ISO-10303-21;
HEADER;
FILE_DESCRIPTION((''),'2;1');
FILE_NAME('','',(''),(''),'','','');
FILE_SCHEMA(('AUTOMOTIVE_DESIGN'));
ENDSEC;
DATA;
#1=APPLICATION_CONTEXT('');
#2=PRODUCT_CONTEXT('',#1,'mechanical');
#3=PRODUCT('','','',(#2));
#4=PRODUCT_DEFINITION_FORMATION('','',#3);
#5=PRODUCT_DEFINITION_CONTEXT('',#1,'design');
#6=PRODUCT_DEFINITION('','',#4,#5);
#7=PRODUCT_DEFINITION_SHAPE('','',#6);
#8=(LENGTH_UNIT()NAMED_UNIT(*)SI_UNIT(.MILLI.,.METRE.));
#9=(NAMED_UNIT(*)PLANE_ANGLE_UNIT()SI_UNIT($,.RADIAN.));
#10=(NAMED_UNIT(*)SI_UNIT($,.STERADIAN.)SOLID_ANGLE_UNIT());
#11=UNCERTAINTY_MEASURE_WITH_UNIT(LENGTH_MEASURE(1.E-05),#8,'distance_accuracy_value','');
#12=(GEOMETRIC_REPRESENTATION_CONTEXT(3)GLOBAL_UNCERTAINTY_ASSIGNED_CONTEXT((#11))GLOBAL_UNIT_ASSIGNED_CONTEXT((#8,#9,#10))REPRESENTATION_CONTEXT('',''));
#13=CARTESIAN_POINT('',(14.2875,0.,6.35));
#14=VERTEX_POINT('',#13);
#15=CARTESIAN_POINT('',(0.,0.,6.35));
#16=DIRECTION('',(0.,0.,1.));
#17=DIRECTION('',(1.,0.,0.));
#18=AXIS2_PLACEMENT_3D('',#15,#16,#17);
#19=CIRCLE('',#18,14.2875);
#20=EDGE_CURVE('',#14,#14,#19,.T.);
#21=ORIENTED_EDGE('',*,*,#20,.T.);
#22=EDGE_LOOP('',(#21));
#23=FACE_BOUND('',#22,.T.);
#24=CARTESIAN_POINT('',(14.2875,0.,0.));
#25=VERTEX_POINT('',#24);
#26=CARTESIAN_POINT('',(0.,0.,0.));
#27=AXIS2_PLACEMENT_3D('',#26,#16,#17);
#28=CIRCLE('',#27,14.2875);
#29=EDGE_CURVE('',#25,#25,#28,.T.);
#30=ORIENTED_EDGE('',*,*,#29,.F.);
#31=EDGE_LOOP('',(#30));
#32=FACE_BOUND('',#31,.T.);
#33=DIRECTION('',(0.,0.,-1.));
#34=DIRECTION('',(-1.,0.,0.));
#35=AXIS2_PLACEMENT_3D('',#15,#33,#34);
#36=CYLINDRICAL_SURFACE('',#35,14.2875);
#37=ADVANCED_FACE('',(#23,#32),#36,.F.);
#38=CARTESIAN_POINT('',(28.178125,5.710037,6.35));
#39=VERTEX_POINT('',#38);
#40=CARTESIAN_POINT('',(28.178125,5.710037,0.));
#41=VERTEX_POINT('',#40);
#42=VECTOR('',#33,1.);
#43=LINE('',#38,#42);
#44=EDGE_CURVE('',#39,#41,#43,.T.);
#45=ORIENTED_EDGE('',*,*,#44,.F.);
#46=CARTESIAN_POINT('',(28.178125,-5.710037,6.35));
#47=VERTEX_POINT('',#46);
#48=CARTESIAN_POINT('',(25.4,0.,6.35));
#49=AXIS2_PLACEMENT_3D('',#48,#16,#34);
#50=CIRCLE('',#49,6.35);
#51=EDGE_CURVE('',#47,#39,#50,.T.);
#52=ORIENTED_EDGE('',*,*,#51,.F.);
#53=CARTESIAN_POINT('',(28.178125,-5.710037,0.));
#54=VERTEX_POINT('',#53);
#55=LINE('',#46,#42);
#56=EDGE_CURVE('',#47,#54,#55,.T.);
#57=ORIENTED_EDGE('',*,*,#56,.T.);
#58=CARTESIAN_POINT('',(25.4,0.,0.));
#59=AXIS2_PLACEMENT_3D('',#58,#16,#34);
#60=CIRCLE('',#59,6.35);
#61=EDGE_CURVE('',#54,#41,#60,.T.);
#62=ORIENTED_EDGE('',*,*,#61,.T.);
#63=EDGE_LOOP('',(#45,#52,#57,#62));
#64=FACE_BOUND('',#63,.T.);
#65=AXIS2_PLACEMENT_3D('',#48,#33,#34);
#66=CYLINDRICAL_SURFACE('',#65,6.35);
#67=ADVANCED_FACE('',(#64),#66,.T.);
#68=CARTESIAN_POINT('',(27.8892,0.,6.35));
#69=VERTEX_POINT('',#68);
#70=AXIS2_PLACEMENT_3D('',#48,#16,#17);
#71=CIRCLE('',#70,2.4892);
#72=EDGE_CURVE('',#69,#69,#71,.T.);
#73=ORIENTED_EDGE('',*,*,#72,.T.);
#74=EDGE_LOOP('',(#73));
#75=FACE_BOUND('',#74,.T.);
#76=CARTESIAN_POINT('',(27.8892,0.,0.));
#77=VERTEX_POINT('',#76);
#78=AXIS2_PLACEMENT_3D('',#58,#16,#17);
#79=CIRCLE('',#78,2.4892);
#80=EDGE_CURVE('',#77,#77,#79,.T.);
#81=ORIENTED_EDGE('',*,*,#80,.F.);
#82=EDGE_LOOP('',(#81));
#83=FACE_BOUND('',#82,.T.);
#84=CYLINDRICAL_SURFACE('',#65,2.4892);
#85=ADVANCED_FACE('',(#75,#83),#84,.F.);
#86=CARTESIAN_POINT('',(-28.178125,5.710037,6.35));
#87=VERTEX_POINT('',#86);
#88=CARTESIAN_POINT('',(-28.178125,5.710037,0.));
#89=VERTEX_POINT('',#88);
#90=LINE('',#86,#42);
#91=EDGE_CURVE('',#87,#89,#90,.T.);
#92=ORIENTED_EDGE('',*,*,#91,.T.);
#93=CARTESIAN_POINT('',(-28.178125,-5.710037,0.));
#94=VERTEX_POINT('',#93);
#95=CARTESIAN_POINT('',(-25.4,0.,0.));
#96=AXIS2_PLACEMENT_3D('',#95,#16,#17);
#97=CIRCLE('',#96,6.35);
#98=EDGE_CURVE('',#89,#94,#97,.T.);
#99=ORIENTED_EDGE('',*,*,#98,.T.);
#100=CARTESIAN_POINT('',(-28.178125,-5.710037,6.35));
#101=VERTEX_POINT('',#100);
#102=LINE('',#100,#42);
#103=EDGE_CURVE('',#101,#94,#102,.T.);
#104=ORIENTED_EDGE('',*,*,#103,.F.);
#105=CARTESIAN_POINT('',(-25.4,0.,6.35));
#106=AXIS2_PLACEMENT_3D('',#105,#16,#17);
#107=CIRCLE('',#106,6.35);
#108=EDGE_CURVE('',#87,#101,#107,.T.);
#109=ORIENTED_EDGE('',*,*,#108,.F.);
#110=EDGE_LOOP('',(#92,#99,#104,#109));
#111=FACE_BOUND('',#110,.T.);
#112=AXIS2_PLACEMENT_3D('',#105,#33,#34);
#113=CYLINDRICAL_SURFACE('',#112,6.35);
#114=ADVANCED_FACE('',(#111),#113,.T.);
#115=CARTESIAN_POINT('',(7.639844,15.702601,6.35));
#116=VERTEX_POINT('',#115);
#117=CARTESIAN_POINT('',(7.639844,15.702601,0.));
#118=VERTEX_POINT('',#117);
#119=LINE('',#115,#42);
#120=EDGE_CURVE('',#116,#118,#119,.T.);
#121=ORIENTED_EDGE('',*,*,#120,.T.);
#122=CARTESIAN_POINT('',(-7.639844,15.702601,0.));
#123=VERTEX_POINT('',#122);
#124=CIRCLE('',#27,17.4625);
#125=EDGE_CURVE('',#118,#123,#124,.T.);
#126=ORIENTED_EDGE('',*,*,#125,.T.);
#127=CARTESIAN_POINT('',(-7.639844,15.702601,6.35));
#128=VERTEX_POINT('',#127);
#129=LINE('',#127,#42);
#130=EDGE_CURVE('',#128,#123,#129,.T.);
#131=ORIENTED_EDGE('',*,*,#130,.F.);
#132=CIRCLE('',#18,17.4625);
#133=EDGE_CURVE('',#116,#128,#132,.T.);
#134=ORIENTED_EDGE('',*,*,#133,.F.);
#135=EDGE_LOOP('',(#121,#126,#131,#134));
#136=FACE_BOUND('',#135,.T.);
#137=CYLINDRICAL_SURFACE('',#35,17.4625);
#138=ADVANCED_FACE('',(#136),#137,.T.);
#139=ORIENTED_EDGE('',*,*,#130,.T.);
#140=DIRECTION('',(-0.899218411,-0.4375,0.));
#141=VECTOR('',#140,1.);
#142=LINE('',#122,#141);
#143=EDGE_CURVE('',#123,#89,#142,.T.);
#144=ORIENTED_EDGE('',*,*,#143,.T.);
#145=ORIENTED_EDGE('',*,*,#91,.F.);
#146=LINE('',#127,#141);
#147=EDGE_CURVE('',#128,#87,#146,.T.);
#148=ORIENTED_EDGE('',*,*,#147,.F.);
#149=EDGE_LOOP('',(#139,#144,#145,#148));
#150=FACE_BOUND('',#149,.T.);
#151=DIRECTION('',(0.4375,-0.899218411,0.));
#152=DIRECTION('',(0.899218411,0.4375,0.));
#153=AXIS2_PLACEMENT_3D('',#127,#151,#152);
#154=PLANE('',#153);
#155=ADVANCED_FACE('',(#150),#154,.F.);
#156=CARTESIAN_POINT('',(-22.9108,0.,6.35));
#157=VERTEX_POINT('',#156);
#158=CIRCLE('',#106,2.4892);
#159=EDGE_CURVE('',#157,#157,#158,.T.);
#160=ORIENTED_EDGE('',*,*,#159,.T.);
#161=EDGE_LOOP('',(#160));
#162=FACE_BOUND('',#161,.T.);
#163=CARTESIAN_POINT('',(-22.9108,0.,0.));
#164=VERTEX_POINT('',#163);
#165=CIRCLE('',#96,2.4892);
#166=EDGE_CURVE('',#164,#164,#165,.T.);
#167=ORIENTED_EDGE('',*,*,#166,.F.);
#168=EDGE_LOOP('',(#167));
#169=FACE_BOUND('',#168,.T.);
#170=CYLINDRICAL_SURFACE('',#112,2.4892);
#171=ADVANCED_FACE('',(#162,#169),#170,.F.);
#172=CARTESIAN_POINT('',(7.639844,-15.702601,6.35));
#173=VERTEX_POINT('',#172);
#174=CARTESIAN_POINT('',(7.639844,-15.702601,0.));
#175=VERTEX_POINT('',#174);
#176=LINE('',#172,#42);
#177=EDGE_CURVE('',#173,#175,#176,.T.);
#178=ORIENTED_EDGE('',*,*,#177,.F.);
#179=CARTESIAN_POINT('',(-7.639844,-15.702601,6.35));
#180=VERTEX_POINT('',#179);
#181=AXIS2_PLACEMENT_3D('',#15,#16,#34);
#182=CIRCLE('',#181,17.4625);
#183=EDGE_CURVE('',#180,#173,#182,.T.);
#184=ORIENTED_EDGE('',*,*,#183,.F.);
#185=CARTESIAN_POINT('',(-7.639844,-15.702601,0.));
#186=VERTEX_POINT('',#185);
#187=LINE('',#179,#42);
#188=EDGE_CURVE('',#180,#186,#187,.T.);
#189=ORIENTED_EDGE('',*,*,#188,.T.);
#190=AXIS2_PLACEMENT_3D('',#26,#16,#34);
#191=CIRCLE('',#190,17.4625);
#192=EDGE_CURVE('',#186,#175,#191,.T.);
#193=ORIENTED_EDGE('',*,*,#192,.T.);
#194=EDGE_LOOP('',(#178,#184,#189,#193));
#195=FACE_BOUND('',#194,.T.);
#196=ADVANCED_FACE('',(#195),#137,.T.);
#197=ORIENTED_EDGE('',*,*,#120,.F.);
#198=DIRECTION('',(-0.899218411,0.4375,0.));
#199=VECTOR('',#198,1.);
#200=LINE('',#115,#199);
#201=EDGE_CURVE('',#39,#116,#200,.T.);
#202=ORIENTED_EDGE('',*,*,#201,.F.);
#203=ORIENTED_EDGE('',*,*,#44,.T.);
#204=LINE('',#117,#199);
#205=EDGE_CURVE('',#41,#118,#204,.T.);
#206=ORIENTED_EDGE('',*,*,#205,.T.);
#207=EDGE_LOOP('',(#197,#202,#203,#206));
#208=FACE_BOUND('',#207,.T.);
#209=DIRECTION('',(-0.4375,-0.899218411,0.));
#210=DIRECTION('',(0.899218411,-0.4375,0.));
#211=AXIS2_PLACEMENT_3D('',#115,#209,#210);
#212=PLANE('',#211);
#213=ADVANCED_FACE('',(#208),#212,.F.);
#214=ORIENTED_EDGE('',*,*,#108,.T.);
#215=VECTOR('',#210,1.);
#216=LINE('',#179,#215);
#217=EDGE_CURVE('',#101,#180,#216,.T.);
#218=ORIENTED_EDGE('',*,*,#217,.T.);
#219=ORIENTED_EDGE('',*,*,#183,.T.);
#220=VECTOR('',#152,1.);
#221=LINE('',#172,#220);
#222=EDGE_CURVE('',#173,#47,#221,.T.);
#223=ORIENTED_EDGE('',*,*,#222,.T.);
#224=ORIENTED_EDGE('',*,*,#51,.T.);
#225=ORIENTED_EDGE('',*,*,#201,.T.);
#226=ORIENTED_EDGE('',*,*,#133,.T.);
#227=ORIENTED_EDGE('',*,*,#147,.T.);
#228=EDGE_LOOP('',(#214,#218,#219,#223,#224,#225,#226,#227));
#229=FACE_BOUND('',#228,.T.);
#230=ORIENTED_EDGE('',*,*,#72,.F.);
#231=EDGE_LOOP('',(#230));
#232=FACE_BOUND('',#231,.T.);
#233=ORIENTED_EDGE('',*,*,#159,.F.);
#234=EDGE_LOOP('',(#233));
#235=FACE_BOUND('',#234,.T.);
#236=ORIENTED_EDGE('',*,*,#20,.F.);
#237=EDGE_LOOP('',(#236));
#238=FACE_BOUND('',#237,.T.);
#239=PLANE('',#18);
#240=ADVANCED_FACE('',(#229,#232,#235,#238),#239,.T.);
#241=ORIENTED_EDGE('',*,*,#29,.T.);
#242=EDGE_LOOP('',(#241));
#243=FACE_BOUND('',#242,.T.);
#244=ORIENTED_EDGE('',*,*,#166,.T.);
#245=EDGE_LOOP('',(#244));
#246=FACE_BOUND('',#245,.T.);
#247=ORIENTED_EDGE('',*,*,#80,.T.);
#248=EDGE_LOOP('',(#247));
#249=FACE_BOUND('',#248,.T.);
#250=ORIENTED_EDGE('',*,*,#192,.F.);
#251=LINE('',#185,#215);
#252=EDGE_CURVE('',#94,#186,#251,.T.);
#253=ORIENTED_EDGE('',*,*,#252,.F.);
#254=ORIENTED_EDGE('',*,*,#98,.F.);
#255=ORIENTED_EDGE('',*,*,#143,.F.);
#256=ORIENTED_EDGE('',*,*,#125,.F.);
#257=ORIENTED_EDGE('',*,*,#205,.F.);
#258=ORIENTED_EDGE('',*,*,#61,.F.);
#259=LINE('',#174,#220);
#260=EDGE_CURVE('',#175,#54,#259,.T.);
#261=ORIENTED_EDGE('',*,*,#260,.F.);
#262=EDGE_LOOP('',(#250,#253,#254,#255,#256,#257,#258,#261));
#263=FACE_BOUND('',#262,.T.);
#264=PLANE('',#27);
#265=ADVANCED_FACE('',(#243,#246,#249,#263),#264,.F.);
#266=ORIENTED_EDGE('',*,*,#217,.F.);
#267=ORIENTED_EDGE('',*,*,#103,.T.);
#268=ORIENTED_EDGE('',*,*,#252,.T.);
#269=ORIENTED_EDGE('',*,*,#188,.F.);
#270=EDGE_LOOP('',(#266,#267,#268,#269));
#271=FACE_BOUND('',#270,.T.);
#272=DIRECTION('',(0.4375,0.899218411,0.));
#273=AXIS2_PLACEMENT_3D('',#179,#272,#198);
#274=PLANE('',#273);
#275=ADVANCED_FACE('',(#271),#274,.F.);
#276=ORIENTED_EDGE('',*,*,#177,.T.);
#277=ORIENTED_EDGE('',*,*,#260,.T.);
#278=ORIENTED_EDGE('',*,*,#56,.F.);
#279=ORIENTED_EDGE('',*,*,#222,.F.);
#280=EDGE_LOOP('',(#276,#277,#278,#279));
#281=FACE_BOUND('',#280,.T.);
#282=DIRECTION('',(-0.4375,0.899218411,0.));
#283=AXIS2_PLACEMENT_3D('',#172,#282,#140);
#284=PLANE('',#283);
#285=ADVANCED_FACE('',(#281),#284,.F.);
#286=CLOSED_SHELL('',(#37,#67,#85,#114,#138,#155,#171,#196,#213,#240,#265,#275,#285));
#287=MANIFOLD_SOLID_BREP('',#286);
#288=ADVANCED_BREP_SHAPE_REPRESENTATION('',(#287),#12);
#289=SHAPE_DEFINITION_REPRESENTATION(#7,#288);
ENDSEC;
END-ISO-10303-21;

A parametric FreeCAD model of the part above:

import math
import FreeCAD as App
import Part
import Sketcher

V = App.Vector
Q = App.Units.Quantity

doc = App.newDocument("Part")
body = doc.addObject("PartDesign::Body", "Body")

# Sketch on XY plane
sketch1 = doc.addObject("Sketcher::SketchObject", "Sketch")
body.addObject(sketch1)
sketch1.AttachmentSupport = (doc.XY_Plane, [""])
sketch1.MapMode = "FlatFace"
sketch1.addGeometry(Part.LineSegment(V(28.2, 5.7, 0), V(7.6, 15.7, 0)), False)
sketch1.addGeometry(Part.ArcOfCircle(Part.Circle(V(0, 0, 0), V(0, 0, 1), 17.5), math.radians(64), math.radians(116)), False)
sketch1.addGeometry(Part.LineSegment(V(-7.6, 15.7, 0), V(-28.2, 5.7, 0)), False)
sketch1.addGeometry(Part.ArcOfCircle(Part.Circle(V(-25.4, 0, 0), V(0, 0, 1), 6.3), math.radians(116), math.radians(244)), False)
sketch1.addGeometry(Part.LineSegment(V(-28.2, -5.7, 0), V(-7.6, -15.7, 0)), False)
sketch1.addGeometry(Part.ArcOfCircle(Part.Circle(V(0, 0, 0), V(0, 0, 1), 17.5), math.radians(-116), math.radians(-64)), False)
sketch1.addGeometry(Part.LineSegment(V(7.6, -15.7, 0), V(28.2, -5.7, 0)), False)
sketch1.addGeometry(Part.ArcOfCircle(Part.Circle(V(25.4, 0, 0), V(0, 0, 1), 6.3), math.radians(-64), math.radians(64)), False)
sketch1.addGeometry(Part.Circle(V(25.4, 0, 0), V(0, 0, 1), 2.5), False)
sketch1.addGeometry(Part.Circle(V(0, 0, 0), V(0, 0, 1), 14.3), False)
sketch1.addGeometry(Part.Circle(V(-25.4, 0, 0), V(0, 0, 1), 2.5), False)
sketch1.addConstraint(Sketcher.Constraint("Tangent", 0, 2, 1, 1))
sketch1.addConstraint(Sketcher.Constraint("Tangent", 1, 2, 2, 1))
sketch1.addConstraint(Sketcher.Constraint("Tangent", 2, 2, 3, 1))
sketch1.addConstraint(Sketcher.Constraint("Tangent", 3, 2, 4, 1))
sketch1.addConstraint(Sketcher.Constraint("Tangent", 4, 2, 5, 1))
sketch1.addConstraint(Sketcher.Constraint("Tangent", 5, 2, 6, 1))
sketch1.addConstraint(Sketcher.Constraint("Tangent", 6, 2, 7, 1))
sketch1.addConstraint(Sketcher.Constraint("Tangent", 7, 2, 0, 1))
sketch1.addConstraint(Sketcher.Constraint("Coincident", 1, 3, -1, 1))
sketch1.addConstraint(Sketcher.Constraint("Coincident", 5, 3, -1, 1))
sketch1.addConstraint(Sketcher.Constraint("Coincident", 9, 3, -1, 1))
sketch1.addConstraint(Sketcher.Constraint("Coincident", 8, 3, 7, 3))
sketch1.addConstraint(Sketcher.Constraint("Coincident", 10, 3, 3, 3))
sketch1.addConstraint(Sketcher.Constraint("Equal", 1, 5))
sketch1.addConstraint(Sketcher.Constraint("Equal", 3, 7))
sketch1.addConstraint(Sketcher.Constraint("Equal", 8, 10))
sketch1.addConstraint(Sketcher.Constraint("Symmetric", 3, 3, 7, 3, -1, 1))
sketch1.addConstraint(Sketcher.Constraint("PointOnObject", 3, 3, -1))
sketch1.addConstraint(Sketcher.Constraint("Radius", 3, Q("0.25 in")))
sketch1.addConstraint(Sketcher.Constraint("Diameter", 8, Q("0.196 in")))
sketch1.addConstraint(Sketcher.Constraint("Diameter", 9, Q("1.125 in")))
sketch1.addConstraint(Sketcher.Constraint("DistanceX", 3, 3, -1, 1, Q("1 in")))
sketch1.addConstraint(Sketcher.Constraint("Radius", 1, Q("0.6875 in")))
pad1 = doc.addObject("PartDesign::Pad", "Pad")
body.addObject(pad1)
pad1.Profile = sketch1
pad1.Length = Q("0.25 in")

doc.recompute()
